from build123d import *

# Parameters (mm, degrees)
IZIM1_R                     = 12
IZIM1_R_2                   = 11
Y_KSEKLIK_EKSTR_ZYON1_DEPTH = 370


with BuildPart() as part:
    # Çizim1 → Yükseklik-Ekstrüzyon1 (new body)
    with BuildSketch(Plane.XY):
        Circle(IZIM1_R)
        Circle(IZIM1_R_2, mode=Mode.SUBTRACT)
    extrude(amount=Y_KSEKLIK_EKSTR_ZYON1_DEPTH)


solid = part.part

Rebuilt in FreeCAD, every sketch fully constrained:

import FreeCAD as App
import Part
import Sketcher
from FreeCAD import Vector

doc = App.newDocument("Part")
body = doc.addObject("PartDesign::Body", "Body")

sketch1 = doc.addObject("Sketcher::SketchObject", "Sketch")
body.addObject(sketch1)
sketch1.AttachmentSupport = (doc.XY_Plane, [""])
sketch1.MapMode = "FlatFace"
sketch1.addGeometry(Part.Circle(Vector(0, 0, 0), Vector(0, 0, 1), 12), False)
sketch1.addGeometry(Part.Circle(Vector(0, 0, 0), Vector(0, 0, 1), 11), False)
sketch1.addConstraint(Sketcher.Constraint("Coincident", 0, 3, -1, 1))
sketch1.addConstraint(Sketcher.Constraint("Coincident", 1, 3, -1, 1))
sketch1.addConstraint(Sketcher.Constraint("Diameter", 0, 24.0))
sketch1.addConstraint(Sketcher.Constraint("Diameter", 1, 22.0))
pad1 = doc.addObject("PartDesign::Pad", "Pad")
body.addObject(pad1)
pad1.Profile = sketch1
pad1.Length = 370

doc.recompute()
